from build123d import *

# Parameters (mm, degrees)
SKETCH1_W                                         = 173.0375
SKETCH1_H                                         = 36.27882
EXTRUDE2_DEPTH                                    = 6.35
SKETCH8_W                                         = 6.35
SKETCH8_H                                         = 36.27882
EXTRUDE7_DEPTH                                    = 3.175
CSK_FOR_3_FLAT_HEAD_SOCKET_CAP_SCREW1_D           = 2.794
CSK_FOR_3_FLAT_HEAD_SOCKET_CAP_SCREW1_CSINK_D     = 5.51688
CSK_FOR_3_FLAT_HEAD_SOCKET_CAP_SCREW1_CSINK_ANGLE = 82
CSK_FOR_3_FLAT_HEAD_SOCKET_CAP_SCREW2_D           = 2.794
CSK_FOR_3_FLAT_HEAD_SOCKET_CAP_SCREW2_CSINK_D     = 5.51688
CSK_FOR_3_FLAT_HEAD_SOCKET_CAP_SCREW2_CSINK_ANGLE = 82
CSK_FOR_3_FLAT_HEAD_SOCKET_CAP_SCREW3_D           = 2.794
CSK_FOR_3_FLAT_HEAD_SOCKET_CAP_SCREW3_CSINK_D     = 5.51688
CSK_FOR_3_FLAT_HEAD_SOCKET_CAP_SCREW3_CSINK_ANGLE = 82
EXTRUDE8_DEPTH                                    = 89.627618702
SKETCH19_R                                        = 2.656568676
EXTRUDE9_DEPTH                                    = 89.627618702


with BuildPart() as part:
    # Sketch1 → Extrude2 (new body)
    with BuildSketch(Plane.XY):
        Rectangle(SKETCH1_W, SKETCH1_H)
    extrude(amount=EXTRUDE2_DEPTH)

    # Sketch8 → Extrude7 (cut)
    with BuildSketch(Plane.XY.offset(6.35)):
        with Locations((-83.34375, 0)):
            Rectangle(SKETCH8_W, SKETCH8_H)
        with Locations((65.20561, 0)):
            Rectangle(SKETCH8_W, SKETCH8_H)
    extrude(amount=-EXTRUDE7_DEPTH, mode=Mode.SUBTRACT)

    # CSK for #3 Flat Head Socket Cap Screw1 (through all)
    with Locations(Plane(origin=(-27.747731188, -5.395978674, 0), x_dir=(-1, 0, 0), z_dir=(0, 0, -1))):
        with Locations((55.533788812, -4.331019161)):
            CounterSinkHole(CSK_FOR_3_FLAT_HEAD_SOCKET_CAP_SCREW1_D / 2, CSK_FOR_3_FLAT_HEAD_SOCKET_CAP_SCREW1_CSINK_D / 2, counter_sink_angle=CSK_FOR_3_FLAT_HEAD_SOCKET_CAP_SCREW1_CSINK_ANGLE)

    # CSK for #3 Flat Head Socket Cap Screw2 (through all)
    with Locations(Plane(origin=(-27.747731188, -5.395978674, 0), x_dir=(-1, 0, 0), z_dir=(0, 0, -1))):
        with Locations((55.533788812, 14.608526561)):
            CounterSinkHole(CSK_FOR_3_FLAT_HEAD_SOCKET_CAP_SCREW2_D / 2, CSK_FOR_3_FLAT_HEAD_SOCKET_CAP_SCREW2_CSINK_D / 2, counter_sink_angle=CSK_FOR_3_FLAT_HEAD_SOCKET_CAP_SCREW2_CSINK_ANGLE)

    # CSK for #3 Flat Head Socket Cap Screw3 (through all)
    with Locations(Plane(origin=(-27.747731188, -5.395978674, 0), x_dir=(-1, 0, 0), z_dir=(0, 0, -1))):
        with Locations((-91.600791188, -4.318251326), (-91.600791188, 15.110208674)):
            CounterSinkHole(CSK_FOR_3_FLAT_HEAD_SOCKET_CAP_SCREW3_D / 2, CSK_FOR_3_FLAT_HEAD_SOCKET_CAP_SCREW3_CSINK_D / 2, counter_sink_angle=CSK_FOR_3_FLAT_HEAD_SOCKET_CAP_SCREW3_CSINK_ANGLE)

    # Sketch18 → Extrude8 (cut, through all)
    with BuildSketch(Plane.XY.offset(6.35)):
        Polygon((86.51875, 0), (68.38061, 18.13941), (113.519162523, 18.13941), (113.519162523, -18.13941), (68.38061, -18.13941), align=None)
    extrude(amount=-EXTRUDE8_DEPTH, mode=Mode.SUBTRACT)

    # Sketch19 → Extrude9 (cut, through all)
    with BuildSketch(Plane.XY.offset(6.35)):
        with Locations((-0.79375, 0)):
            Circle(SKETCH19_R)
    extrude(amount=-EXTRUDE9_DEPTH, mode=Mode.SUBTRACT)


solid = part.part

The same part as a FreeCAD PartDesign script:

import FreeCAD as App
import Part
import Sketcher

V = App.Vector
Q = App.Units.Quantity

doc = App.newDocument("Part")
body = doc.addObject("PartDesign::Body", "Body")

sketch1 = doc.addObject("Sketcher::SketchObject", "Sketch")
body.addObject(sketch1)
sketch1.AttachmentSupport = (doc.XY_Plane, [""])
sketch1.MapMode = "FlatFace"
sketch1.addGeometry([
    Part.LineSegment(V(-87, 18, 0), V(-87, -18, 0)),
    Part.LineSegment(V(-87, -18, 0), V(87, -18, 0)),
    Part.LineSegment(V(87, -18, 0), V(87, 18, 0)),
    Part.LineSegment(V(87, 18, 0), V(-87, 18, 0)),
], False)
sketch1.addConstraint([
    Sketcher.Constraint("Coincident", 0, 2, 1, 1),
    Sketcher.Constraint("Coincident", 1, 2, 2, 1),
    Sketcher.Constraint("Coincident", 2, 2, 3, 1),
    Sketcher.Constraint("Coincident", 3, 2, 0, 1),
    Sketcher.Constraint("Vertical", 0),
    Sketcher.Constraint("Horizontal", 1),
    Sketcher.Constraint("Vertical", 2),
    Sketcher.Constraint("Horizontal", 3),
    Sketcher.Constraint("Symmetric", 0, 2, 2, 2, -1, 1),
    Sketcher.Constraint("DistanceX", 1, 1, 1, 2, Q("6.8125 in")),
    Sketcher.Constraint("DistanceY", 0, 2, 0, 1, Q("1.4283 in")),
])
pad1 = doc.addObject("PartDesign::Pad", "Pad")
body.addObject(pad1)
pad1.Profile = sketch1
pad1.Length = Q("0.25 in")

sketch2 = doc.addObject("Sketcher::SketchObject", "Sketch001")
body.addObject(sketch2)
sketch2.AttachmentSupport = (doc.XY_Plane, [""])
sketch2.MapMode = "FlatFace"
sketch2.AttachmentOffset = App.Placement(V(0, 0, 0.25 * 25.4), App.Rotation())
sketch2.addGeometry([
    Part.LineSegment(V(-87, 18, 0), V(-87, -18, 0)),
    Part.LineSegment(V(-87, -18, 0), V(-80, -18, 0)),
    Part.LineSegment(V(-80, -18, 0), V(-80, 18, 0)),
    Part.LineSegment(V(-80, 18, 0), V(-87, 18, 0)),
    Part.LineSegment(V(62, 18, 0), V(62, -18, 0)),
    Part.LineSegment(V(62, -18, 0), V(68, -18, 0)),
    Part.LineSegment(V(68, -18, 0), V(68, 18, 0)),
    Part.LineSegment(V(68, 18, 0), V(62, 18, 0)),
], False)
sketch2.addConstraint([
    Sketcher.Constraint("Coincident", 0, 2, 1, 1),
    Sketcher.Constraint("Coincident", 1, 2, 2, 1),
    Sketcher.Constraint("Coincident", 2, 2, 3, 1),
    Sketcher.Constraint("Coincident", 3, 2, 0, 1),
    Sketcher.Constraint("Coincident", 4, 2, 5, 1),
    Sketcher.Constraint("Coincident", 5, 2, 6, 1),
    Sketcher.Constraint("Coincident", 6, 2, 7, 1),
    Sketcher.Constraint("Coincident", 7, 2, 4, 1),
    Sketcher.Constraint("Vertical", 0),
    Sketcher.Constraint("Horizontal", 1),
    Sketcher.Constraint("Vertical", 2),
    Sketcher.Constraint("Horizontal", 3),
    Sketcher.Constraint("Vertical", 4),
    Sketcher.Constraint("Horizontal", 5),
    Sketcher.Constraint("Vertical", 6),
    Sketcher.Constraint("Horizontal", 7),
    Sketcher.Constraint("Horizontal", 1, 2, 4, 2),
    Sketcher.Constraint("Horizontal", 3, 2, 6, 2),
    Sketcher.Constraint("Equal", 3, 5),
    Sketcher.Constraint("DistanceX", 1, 1, 1, 2, Q("0.25 in")),
    Sketcher.Constraint("DistanceY", 0, 2, 0, 1, Q("1.4283 in")),
    Sketcher.Constraint("DistanceX", 0, 2, -1, 1, Q("3.40625 in")),
    Sketcher.Constraint("DistanceX", 1, 2, 4, 2, Q("5.5984 in")),
    Sketcher.Constraint("DistanceY", 0, 2, -1, 1, Q("18.13941 mm")),
])
pocket1 = doc.addObject("PartDesign::Pocket", "Pocket")
body.addObject(pocket1)
pocket1.Profile = sketch2
pocket1.Length = Q("0.125 in")

sketch3 = doc.addObject("Sketcher::SketchObject", "Sketch002")
body.addObject(sketch3)
sketch3.AttachmentSupport = (doc.XY_Plane, [""])
sketch3.MapMode = "FlatFace"
sketch3.addGeometry(Part.Circle(V(-83.3, -9.7, 0), V(0, 0, 1), 1.4), False)
sketch3.addConstraint([
    Sketcher.Constraint("Diameter", 0, Q("0.11 in")),
    Sketcher.Constraint("DistanceX", 0, 3, -1, 1, Q("3.2788 in")),
    Sketcher.Constraint("DistanceY", 0, 3, -1, 1, Q("9.726998 mm")),
])
doc.recompute()
hole = doc.addObject("PartDesign::Hole", "Hole")
body.addObject(hole)
hole.Profile = sketch3
hole.ThreadType = "None"
hole.Diameter = Q("0.11 in")
hole.DepthType = "ThroughAll"
hole.HoleCutType = "Countersink"
hole.HoleCutDiameter = Q("0.2172 in")
hole.HoleCutCountersinkAngle = 82
hole.Reversed = True

sketch4 = doc.addObject("Sketcher::SketchObject", "Sketch003")
body.addObject(sketch4)
sketch4.AttachmentSupport = (doc.XY_Plane, [""])
sketch4.MapMode = "FlatFace"
sketch4.addGeometry(Part.Circle(V(-83.3, 9.2, 0), V(0, 0, 1), 1.4), False)
sketch4.addConstraint([
    Sketcher.Constraint("Diameter", 0, Q("0.11 in")),
    Sketcher.Constraint("DistanceX", 0, 3, -1, 1, Q("3.2788 in")),
    Sketcher.Constraint("DistanceY", -1, 1, 0, 3, Q("9.212548 mm")),
])
doc.recompute()
hole2 = doc.addObject("PartDesign::Hole", "Hole001")
body.addObject(hole2)
hole2.Profile = sketch4
hole2.ThreadType = "None"
hole2.Diameter = Q("0.11 in")
hole2.DepthType = "ThroughAll"
hole2.HoleCutType = "Countersink"
hole2.HoleCutDiameter = Q("0.2172 in")
hole2.HoleCutCountersinkAngle = 82
hole2.Reversed = True

sketch5 = doc.addObject("Sketcher::SketchObject", "Sketch004")
body.addObject(sketch5)
sketch5.AttachmentSupport = (doc.XY_Plane, [""])
sketch5.MapMode = "FlatFace"
sketch5.addGeometry([
    Part.Circle(V(63.9, -9.7, 0), V(0, 0, 1), 1.4),
    Part.Circle(V(63.9, 9.7, 0), V(0, 0, 1), 1.4),
], False)
sketch5.addConstraint([
    Sketcher.Constraint("Equal", 0, 1),
    Sketcher.Constraint("Symmetric", 0, 3, 1, 3, -1),
    Sketcher.Constraint("Diameter", 0, Q("0.11 in")),
    Sketcher.Constraint("DistanceX", -1, 1, 0, 3, Q("2.5139 in")),
    Sketcher.Constraint("DistanceY", 0, 3, 1, 3, Q("0.7649 in")),
])
doc.recompute()
hole3 = doc.addObject("PartDesign::Hole", "Hole002")
body.addObject(hole3)
hole3.Profile = sketch5
hole3.ThreadType = "None"
hole3.Diameter = Q("0.11 in")
hole3.DepthType = "ThroughAll"
hole3.HoleCutType = "Countersink"
hole3.HoleCutDiameter = Q("0.2172 in")
hole3.HoleCutCountersinkAngle = 82
hole3.Reversed = True

sketch6 = doc.addObject("Sketcher::SketchObject", "Sketch005")
body.addObject(sketch6)
sketch6.AttachmentSupport = (doc.XY_Plane, [""])
sketch6.MapMode = "FlatFace"
sketch6.AttachmentOffset = App.Placement(V(0, 0, 0.25 * 25.4), App.Rotation())
sketch6.addGeometry([
    Part.LineSegment(V(68, 18, 0), V(87, 0, 0)),
    Part.LineSegment(V(87, 0, 0), V(68, -18, 0)),
    Part.LineSegment(V(68, -18, 0), V(114, -18, 0)),
    Part.LineSegment(V(114, -18, 0), V(114, 18, 0)),
    Part.LineSegment(V(114, 18, 0), V(68, 18, 0)),
], False)
sketch6.addConstraint([
    Sketcher.Constraint("Coincident", 0, 2, 1, 1),
    Sketcher.Constraint("Coincident", 1, 2, 2, 1),
    Sketcher.Constraint("Coincident", 2, 2, 3, 1),
    Sketcher.Constraint("Coincident", 3, 2, 4, 1),
    Sketcher.Constraint("Coincident", 4, 2, 0, 1),
    Sketcher.Constraint("Horizontal", 2),
    Sketcher.Constraint("Vertical", 3),
    Sketcher.Constraint("Horizontal", 4),
    Sketcher.Constraint("Symmetric", 1, 2, 4, 2, -1),
    Sketcher.Constraint("PointOnObject", 0, 2, -1),
    Sketcher.Constraint("DistanceY", 3, 1, 3, 2, Q("1.4283 in")),
    Sketcher.Constraint("DistanceX", -1, 1, 0, 2, Q("3.40625 in")),
    Sketcher.Constraint("DistanceX", 1, 2, 0, 2, Q("0.7141 in")),
    Sketcher.Constraint("DistanceX", 2, 1, 2, 2, Q("45.138553 mm")),
])
pocket2 = doc.addObject("PartDesign::Pocket", "Pocket001")
body.addObject(pocket2)
pocket2.Profile = sketch6
pocket2.Type = "ThroughAll"

sketch7 = doc.addObject("Sketcher::SketchObject", "Sketch006")
body.addObject(sketch7)
sketch7.AttachmentSupport = (doc.XY_Plane, [""])
sketch7.MapMode = "FlatFace"
sketch7.AttachmentOffset = App.Placement(V(0, 0, 0.25 * 25.4), App.Rotation())
sketch7.addGeometry(Part.Circle(V(-0.8, 0, 0), V(0, 0, 1), 2.7), False)
sketch7.addConstraint([
    Sketcher.Constraint("PointOnObject", 0, 3, -1),
    Sketcher.Constraint("DistanceX", 0, 3, -1, 1, Q("0.03125 in")),
    Sketcher.Constraint("Diameter", 0, Q("5.313137 mm")),
])
pocket3 = doc.addObject("PartDesign::Pocket", "Pocket002")
body.addObject(pocket3)
pocket3.Profile = sketch7
pocket3.Type = "ThroughAll"

doc.recompute()
